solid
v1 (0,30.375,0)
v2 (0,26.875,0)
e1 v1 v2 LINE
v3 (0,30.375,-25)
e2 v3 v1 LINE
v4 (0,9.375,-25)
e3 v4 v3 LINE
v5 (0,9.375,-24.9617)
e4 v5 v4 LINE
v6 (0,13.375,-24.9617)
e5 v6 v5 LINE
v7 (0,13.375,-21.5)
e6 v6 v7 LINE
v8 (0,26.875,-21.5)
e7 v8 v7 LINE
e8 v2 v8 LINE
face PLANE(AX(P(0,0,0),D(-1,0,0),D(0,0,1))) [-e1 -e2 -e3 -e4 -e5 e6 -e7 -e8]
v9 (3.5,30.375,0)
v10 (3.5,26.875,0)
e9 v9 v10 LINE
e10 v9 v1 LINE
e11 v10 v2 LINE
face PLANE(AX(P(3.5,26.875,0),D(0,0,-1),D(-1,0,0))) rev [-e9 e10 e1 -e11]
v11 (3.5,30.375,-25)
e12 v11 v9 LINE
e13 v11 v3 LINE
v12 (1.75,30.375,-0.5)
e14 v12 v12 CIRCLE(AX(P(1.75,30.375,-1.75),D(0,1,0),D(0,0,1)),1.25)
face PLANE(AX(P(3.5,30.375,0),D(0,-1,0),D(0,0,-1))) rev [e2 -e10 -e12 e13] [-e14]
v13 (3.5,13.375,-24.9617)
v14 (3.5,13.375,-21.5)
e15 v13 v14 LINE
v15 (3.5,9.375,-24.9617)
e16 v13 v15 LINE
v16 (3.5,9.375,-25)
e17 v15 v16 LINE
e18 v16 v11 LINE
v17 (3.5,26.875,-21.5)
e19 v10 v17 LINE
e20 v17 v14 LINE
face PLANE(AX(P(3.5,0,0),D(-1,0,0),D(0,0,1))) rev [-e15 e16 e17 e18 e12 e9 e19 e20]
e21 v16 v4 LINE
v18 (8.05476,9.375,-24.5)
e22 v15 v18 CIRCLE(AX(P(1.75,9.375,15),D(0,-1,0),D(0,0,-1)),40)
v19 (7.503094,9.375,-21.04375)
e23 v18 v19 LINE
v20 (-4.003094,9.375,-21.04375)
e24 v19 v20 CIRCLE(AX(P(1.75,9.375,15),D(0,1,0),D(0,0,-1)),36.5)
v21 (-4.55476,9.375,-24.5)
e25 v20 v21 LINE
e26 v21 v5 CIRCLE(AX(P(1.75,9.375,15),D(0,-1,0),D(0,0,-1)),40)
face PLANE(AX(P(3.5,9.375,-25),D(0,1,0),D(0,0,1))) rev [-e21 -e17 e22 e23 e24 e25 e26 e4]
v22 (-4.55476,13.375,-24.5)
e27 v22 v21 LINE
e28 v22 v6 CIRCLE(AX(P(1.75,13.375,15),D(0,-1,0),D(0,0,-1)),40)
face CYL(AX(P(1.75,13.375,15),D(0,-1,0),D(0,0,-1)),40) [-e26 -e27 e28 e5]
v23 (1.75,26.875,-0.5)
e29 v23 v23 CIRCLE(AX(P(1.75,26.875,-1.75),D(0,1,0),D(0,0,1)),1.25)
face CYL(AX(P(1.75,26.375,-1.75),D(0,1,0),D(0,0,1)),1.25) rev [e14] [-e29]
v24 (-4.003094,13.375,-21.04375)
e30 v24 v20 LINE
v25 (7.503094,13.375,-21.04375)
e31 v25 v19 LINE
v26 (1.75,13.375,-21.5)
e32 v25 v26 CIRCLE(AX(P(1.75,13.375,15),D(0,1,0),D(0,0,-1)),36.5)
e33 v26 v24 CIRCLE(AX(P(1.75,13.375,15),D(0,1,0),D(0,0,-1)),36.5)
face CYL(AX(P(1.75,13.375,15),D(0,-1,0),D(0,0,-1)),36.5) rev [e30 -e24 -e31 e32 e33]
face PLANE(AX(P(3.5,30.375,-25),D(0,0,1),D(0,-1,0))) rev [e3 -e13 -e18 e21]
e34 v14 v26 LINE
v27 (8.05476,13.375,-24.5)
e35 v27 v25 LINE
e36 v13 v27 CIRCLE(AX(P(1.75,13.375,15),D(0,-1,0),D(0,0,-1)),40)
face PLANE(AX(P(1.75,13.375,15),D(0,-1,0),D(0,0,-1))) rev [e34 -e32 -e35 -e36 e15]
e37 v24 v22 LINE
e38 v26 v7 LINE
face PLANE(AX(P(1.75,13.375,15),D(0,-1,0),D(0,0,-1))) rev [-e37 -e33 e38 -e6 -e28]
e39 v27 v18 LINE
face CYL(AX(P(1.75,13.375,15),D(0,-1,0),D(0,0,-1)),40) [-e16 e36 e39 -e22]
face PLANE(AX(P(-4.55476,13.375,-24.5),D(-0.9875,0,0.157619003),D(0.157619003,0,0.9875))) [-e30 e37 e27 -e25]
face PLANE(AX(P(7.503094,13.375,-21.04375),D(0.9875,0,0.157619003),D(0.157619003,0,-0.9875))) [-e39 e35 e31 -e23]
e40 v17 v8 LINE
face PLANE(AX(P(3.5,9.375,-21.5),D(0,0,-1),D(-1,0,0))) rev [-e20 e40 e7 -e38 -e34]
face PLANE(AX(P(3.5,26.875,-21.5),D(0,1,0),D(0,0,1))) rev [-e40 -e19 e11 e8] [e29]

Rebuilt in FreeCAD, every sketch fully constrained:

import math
import FreeCAD as App
import Part
import Sketcher

V = App.Vector

doc = App.newDocument("Part")
body = doc.addObject("PartDesign::Body", "Body")

# Sketch on YZ plane
sketch1 = body.newObject("Sketcher::SketchObject", "Sketch")
sketch1.AttachmentSupport = (doc.getObject("YZ_Plane"), [""])
sketch1.MapMode = "FlatFace"
sketch1.addGeometry([
    Part.LineSegment(V(30.4, -25, 0), V(30.4, 0, 0)),  # 0
    Part.LineSegment(V(30.4, 0, 0), V(26.9, 0, 0)),  # 1
    Part.LineSegment(V(26.9, 0, 0), V(26.9, -21.5, 0)),  # 2
    Part.LineSegment(V(26.9, -21.5, 0), V(9.4, -21.5, 0)),  # 3
    Part.LineSegment(V(9.4, -21.5, 0), V(9.4, -25, 0)),  # 4
    Part.LineSegment(V(9.4, -25, 0), V(30.4, -25, 0)),  # 5
], False)
sketch1.addConstraint([
    Sketcher.Constraint("Coincident", 0, 2, 1, 1),
    Sketcher.Constraint("Coincident", 1, 2, 2, 1),
    Sketcher.Constraint("Coincident", 2, 2, 3, 1),
    Sketcher.Constraint("Coincident", 3, 2, 4, 1),
    Sketcher.Constraint("Coincident", 4, 2, 5, 1),
    Sketcher.Constraint("Coincident", 5, 2, 0, 1),
    Sketcher.Constraint("Vertical", 0),
    Sketcher.Constraint("Horizontal", 1),
    Sketcher.Constraint("Vertical", 2),
    Sketcher.Constraint("Horizontal", 3),
    Sketcher.Constraint("Vertical", 4),
    Sketcher.Constraint("Horizontal", 5),
    Sketcher.Constraint("PointOnObject", 0, 2, -1),
    Sketcher.Constraint("Equal", 1, 4),
    Sketcher.Constraint("DistanceX", 5, 1, 5, 2, 21.0),
    Sketcher.Constraint("DistanceY", 0, 1, 0, 2, 25.0),
    Sketcher.Constraint("DistanceX", 1, 2, 1, 1, 3.5),
    Sketcher.Constraint("DistanceX", -1, 1, 0, 2, 30.375),
])
pad1 = body.newObject("PartDesign::Pad", "Pad")
pad1.Profile = sketch1
pad1.Length = 3.5

# Sketch on XZ plane
sketch2 = body.newObject("Sketcher::SketchObject", "Sketch001")
sketch2.AttachmentSupport = (doc.getObject("XZ_Plane"), [""])
sketch2.MapMode = "FlatFace"
sketch2.AttachmentOffset = App.Placement(V(0, 0, -9.375), App.Rotation())
sketch2.addGeometry([
    Part.LineSegment(V(-4, -21, 0), V(-4.6, -24.5, 0)),
    Part.ArcOfCircle(Part.Circle(V(1.8, 15, 0), V(0, 0, 1), 40), math.radians(-99.07), math.radians(-80.93)),
    Part.LineSegment(V(8.1, -24.5, 0), V(7.5, -21, 0)),
    Part.ArcOfCircle(Part.Circle(V(1.8, 15, 0), V(0, 0, 1), 36.5), math.radians(-99.07), math.radians(-80.93)),
], False)
sketch2.addConstraint([
    Sketcher.Constraint("Coincident", 0, 2, 1, 1),
    Sketcher.Constraint("Coincident", 1, 2, 2, 1),
    Sketcher.Constraint("Coincident", 2, 2, 3, 2),
    Sketcher.Constraint("Coincident", 3, 1, 0, 1),
    Sketcher.Constraint("Coincident", 3, 3, 1, 3),
    Sketcher.Constraint("Horizontal", 0, 2, 1, 2),
    Sketcher.Constraint("Horizontal", 2, 2, 3, 1),
    Sketcher.Constraint("Radius", 1, 40.0),
    Sketcher.Constraint("Radius", 3, 36.5),
    Sketcher.Constraint("DistanceY", -1, 1, 1, 3, 15.0),
    Sketcher.Constraint("DistanceY", 0, 2, -1, 1, 24.5),
    Sketcher.Constraint("DistanceX", -1, 1, 1, 3, 1.75),
    Sketcher.Constraint("DistanceY", 2, 2, -1, 1, 21.04375),
])
pad2 = body.newObject("PartDesign::Pad", "Pad001")
pad2.Profile = sketch2
pad2.Length = 4
pad2.Reversed = True

# Sketch on XZ plane
sketch3 = body.newObject("Sketcher::SketchObject", "Sketch002")
sketch3.AttachmentSupport = (doc.getObject("XZ_Plane"), [""])
sketch3.MapMode = "FlatFace"
sketch3.AttachmentOffset = App.Placement(V(0, 0, -30.375), App.Rotation())
sketch3.addGeometry(Part.Circle(V(1.8, -1.8, 0), V(0, 0, 1), 1.2), False)
sketch3.addConstraint([
    Sketcher.Constraint("Diameter", 0, 2.5),
    Sketcher.Constraint("DistanceX", -1, 1, 0, 3, 1.75),
    Sketcher.Constraint("DistanceY", 0, 3, -1, 1, 1.75),
])
pocket1 = body.newObject("PartDesign::Pocket", "Pocket")
pocket1.Profile = sketch3
pocket1.Length = 4
pocket1.Reversed = True

doc.recompute()
